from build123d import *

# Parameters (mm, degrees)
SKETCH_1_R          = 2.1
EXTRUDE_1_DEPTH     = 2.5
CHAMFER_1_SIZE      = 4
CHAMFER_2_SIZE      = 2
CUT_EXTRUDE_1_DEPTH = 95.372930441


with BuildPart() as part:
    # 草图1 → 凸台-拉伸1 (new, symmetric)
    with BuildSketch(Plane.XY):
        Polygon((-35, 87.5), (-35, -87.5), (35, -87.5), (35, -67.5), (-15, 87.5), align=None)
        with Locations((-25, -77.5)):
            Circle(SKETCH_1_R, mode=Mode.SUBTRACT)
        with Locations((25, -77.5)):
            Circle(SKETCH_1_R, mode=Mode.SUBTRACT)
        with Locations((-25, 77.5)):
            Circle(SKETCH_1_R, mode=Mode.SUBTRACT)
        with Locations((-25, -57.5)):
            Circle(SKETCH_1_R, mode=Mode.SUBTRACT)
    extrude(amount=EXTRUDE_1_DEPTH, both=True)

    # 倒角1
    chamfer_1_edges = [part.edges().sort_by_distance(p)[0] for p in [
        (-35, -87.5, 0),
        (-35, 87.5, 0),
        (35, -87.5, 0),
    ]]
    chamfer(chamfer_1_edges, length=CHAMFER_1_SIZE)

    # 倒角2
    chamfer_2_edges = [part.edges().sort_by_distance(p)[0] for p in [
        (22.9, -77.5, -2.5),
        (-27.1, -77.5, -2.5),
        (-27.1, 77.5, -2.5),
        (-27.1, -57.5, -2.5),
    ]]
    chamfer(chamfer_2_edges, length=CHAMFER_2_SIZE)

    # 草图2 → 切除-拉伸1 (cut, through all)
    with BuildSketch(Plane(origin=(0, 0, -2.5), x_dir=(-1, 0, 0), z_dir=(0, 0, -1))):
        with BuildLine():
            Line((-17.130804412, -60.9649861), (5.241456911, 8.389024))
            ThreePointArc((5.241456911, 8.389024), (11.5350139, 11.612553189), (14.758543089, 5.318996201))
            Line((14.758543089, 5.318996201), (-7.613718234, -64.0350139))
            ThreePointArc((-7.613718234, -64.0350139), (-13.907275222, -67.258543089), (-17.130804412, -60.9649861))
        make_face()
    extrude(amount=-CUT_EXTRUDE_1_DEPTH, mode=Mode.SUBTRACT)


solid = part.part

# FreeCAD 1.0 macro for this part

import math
import FreeCAD as App
import Part
import Sketcher
Q = App.Units.Quantity


def edges_at(feature, points):
    """Names of the edges that pass closest to the given points."""
    edges = feature.Shape.Edges
    near = lambda p: min(range(len(edges)), key=lambda i: edges[i].distToShape(Part.Vertex(*p))[0])
    return sorted({f"Edge{near(p) + 1}" for p in points})

doc = App.newDocument("Part")
body = doc.addObject("PartDesign::Body", "Body")

sketch1 = body.newObject("Sketcher::SketchObject", "Sketch")
sketch1.AttachmentSupport = (doc.getObject("XY_Plane"), [""])
sketch1.MapMode = "FlatFace"
sketch1.addGeometry([
    Part.LineSegment(App.Vector(-35, 87.5, 0), App.Vector(-35, -87.5, 0)),
    Part.LineSegment(App.Vector(-35, -87.5, 0), App.Vector(35, -87.5, 0)),
    Part.LineSegment(App.Vector(35, -87.5, 0), App.Vector(35, -67.5, 0)),
    Part.LineSegment(App.Vector(35, -67.5, 0), App.Vector(-15, 87.5, 0)),
    Part.LineSegment(App.Vector(-15, 87.5, 0), App.Vector(-35, 87.5, 0)),
    Part.Circle(App.Vector(-25, -77.5, 0), App.Vector(0, 0, 1), 2.1),
    Part.Circle(App.Vector(-25, -57.5, 0), App.Vector(0, 0, 1), 2.1),
    Part.Circle(App.Vector(25, -77.5, 0), App.Vector(0, 0, 1), 2.1),
    Part.Circle(App.Vector(-25, 77.5, 0), App.Vector(0, 0, 1), 2.1),
], False)
sketch1.addConstraint([
    Sketcher.Constraint("Coincident", 0, 2, 1, 1),
    Sketcher.Constraint("Coincident", 1, 2, 2, 1),
    Sketcher.Constraint("Coincident", 2, 2, 3, 1),
    Sketcher.Constraint("Coincident", 3, 2, 4, 1),
    Sketcher.Constraint("Coincident", 4, 2, 0, 1),
    Sketcher.Constraint("Vertical", 0),
    Sketcher.Constraint("Horizontal", 1),
    Sketcher.Constraint("Vertical", 2),
    Sketcher.Constraint("Horizontal", 4),
    Sketcher.Constraint("Equal", 5, 6),
    Sketcher.Constraint("Equal", 6, 7),
    Sketcher.Constraint("Equal", 7, 8),
    Sketcher.Constraint("Symmetric", 7, 3, 8, 3, -1, 1),
    Sketcher.Constraint("Symmetric", 1, 2, 4, 2, -1, 1),
    Sketcher.Constraint("Symmetric", 5, 3, 7, 3, -2),
    Sketcher.Constraint("Vertical", 5, 3, 6, 3),
    Sketcher.Constraint("Equal", 4, 2),
    Sketcher.Constraint("Diameter", 5, Q("4.2 mm")),
    Sketcher.Constraint("DistanceX", 1, 1, 1, 2, Q("70 mm")),
    Sketcher.Constraint("DistanceX", 4, 2, 4, 1, Q("20 mm")),
    Sketcher.Constraint("DistanceY", 0, 2, 0, 1, Q("175 mm")),
    Sketcher.Constraint("DistanceX", 5, 3, -1, 1, Q("25 mm")),
    Sketcher.Constraint("DistanceY", 5, 3, 6, 3, Q("20 mm")),
    Sketcher.Constraint("DistanceY", 6, 3, 8, 3, Q("135 mm")),
])
pad1 = body.newObject("PartDesign::Pad", "Pad")
pad1.Profile = sketch1
pad1.Length = 5
pad1.Midplane = True
doc.recompute()

chamfer = body.newObject("PartDesign::Chamfer", "Chamfer")
chamfer.Base = (pad1, edges_at(pad1, [(-35, -87.5, 0), (-35, 87.5, 0), (35, -87.5, 0)]))
chamfer.Size = 4
doc.recompute()

chamfer2 = body.newObject("PartDesign::Chamfer", "Chamfer001")
chamfer2.Base = (chamfer, edges_at(chamfer, [
    (22.9, -77.5, -2.5),
    (-27.1, -77.5, -2.5),
    (-27.1, 77.5, -2.5),
    (-27.1, -57.5, -2.5),
]))
chamfer2.Size = 2

sketch2 = body.newObject("Sketcher::SketchObject", "Sketch001")
sketch2.AttachmentSupport = (doc.getObject("XY_Plane"), [""])
sketch2.MapMode = "FlatFace"
sketch2.AttachmentOffset = App.Placement(App.Vector(0, 0, -2.5), App.Rotation())
sketch2.addGeometry([
    Part.LineSegment(App.Vector(-5, 8, 0), App.Vector(17, -61, 0)),
    Part.ArcOfCircle(Part.Circle(App.Vector(12, -62, 0), App.Vector(0, 0, 1), 5), math.radians(-162), math.radians(18)),
    Part.LineSegment(App.Vector(8, -64, 0), App.Vector(-15, 5, 0)),
    Part.ArcOfCircle(Part.Circle(App.Vector(-10, 7, 0), App.Vector(0, 0, 1), 5), math.radians(18), math.radians(198)),
], False)
sketch2.addConstraint([
    Sketcher.Constraint("Tangent", 0, 2, 1, 2),
    Sketcher.Constraint("Tangent", 1, 1, 2, 1),
    Sketcher.Constraint("Tangent", 2, 2, 3, 2),
    Sketcher.Constraint("Tangent", 3, 1, 0, 1),
    Sketcher.Constraint("Equal", 1, 3),
    Sketcher.Constraint("Radius", 1, Q("5 mm")),
    Sketcher.Constraint("DistanceX", 3, 3, -1, 1, Q("10 mm")),
    Sketcher.Constraint("DistanceY", 1, 3, -1, 1, Q("62.5 mm")),
    Sketcher.Constraint("DistanceX", -1, 1, 1, 3, Q("12.372261 mm")),
    Sketcher.Constraint("DistanceY", -1, 1, 3, 3, Q("6.85401 mm")),
])
pocket1 = body.newObject("PartDesign::Pocket", "Pocket")
pocket1.Profile = sketch2
pocket1.Type = "ThroughAll"
pocket1.Reversed = True

doc.recompute()
